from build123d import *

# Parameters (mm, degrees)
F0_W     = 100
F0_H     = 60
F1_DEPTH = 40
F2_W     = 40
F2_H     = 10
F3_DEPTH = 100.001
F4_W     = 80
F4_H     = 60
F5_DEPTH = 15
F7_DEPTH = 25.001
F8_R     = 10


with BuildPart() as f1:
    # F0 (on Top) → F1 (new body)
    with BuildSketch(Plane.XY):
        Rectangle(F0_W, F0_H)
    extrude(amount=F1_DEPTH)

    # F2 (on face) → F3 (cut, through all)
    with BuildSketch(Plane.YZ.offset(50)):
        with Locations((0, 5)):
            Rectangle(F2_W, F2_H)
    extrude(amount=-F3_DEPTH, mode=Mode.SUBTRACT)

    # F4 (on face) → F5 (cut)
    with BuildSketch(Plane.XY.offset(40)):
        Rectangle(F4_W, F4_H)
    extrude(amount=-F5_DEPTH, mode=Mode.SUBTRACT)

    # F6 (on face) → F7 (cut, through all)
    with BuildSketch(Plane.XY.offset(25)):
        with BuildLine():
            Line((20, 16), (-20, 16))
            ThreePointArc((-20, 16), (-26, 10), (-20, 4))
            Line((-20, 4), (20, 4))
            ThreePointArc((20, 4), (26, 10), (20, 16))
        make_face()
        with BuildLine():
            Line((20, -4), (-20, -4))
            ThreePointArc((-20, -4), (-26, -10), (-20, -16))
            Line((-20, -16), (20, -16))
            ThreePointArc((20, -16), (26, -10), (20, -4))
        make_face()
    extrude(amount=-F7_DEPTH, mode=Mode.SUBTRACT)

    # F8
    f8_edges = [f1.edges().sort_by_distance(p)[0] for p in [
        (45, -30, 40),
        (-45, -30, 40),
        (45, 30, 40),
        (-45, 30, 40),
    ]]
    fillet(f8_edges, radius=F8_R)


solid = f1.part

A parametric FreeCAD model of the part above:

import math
import FreeCAD as App
import Part
import Sketcher

V = App.Vector
Q = App.Units.Quantity


def edges_at(feature, points):
    """Names of the edges that pass closest to the given points."""
    edges = feature.Shape.Edges
    near = lambda p: min(range(len(edges)), key=lambda i: edges[i].distToShape(Part.Vertex(*p))[0])
    return sorted({f"Edge{near(p) + 1}" for p in points})

doc = App.newDocument("Part")
body = doc.addObject("PartDesign::Body", "Body")

sketch1 = body.newObject("Sketcher::SketchObject", "Sketch")
sketch1.AttachmentSupport = (doc.getObject("XY_Plane"), [""])
sketch1.MapMode = "FlatFace"
sketch1.addGeometry([
    Part.LineSegment(V(-50, 30, 0), V(-50, -30, 0)),
    Part.LineSegment(V(-50, -30, 0), V(50, -30, 0)),
    Part.LineSegment(V(50, -30, 0), V(50, 30, 0)),
    Part.LineSegment(V(50, 30, 0), V(-50, 30, 0)),
], False)
sketch1.addConstraint([
    Sketcher.Constraint("Coincident", 0, 2, 1, 1),
    Sketcher.Constraint("Coincident", 1, 2, 2, 1),
    Sketcher.Constraint("Coincident", 2, 2, 3, 1),
    Sketcher.Constraint("Coincident", 3, 2, 0, 1),
    Sketcher.Constraint("Vertical", 0),
    Sketcher.Constraint("Horizontal", 1),
    Sketcher.Constraint("Vertical", 2),
    Sketcher.Constraint("Horizontal", 3),
    Sketcher.Constraint("Symmetric", 0, 2, 2, 2, -1, 1),
    Sketcher.Constraint("DistanceX", 1, 1, 1, 2, Q("100 mm")),
    Sketcher.Constraint("DistanceY", 0, 2, 0, 1, Q("60 mm")),
])
pad1 = body.newObject("PartDesign::Pad", "Pad")
pad1.Profile = sketch1
pad1.Length = 40

sketch2 = body.newObject("Sketcher::SketchObject", "Sketch001")
sketch2.AttachmentSupport = (doc.getObject("YZ_Plane"), [""])
sketch2.MapMode = "FlatFace"
sketch2.AttachmentOffset = App.Placement(V(0, 0, 50), App.Rotation())
sketch2.addGeometry([
    Part.LineSegment(V(-20, 10, 0), V(-20, 0, 0)),
    Part.LineSegment(V(-20, 0, 0), V(20, 0, 0)),
    Part.LineSegment(V(20, 0, 0), V(20, 10, 0)),
    Part.LineSegment(V(20, 10, 0), V(-20, 10, 0)),
], False)
sketch2.addConstraint([
    Sketcher.Constraint("Coincident", 0, 2, 1, 1),
    Sketcher.Constraint("Coincident", 1, 2, 2, 1),
    Sketcher.Constraint("Coincident", 2, 2, 3, 1),
    Sketcher.Constraint("Coincident", 3, 2, 0, 1),
    Sketcher.Constraint("Vertical", 0),
    Sketcher.Constraint("Horizontal", 1),
    Sketcher.Constraint("Vertical", 2),
    Sketcher.Constraint("Horizontal", 3),
    Sketcher.Constraint("Symmetric", 0, 2, 1, 2, -1, 1),
    Sketcher.Constraint("DistanceX", 1, 1, 1, 2, Q("40 mm")),
    Sketcher.Constraint("DistanceY", 0, 2, 0, 1, Q("10 mm")),
])
pocket1 = body.newObject("PartDesign::Pocket", "Pocket")
pocket1.Profile = sketch2
pocket1.Type = "ThroughAll"

sketch3 = body.newObject("Sketcher::SketchObject", "Sketch002")
sketch3.AttachmentSupport = (doc.getObject("XY_Plane"), [""])
sketch3.MapMode = "FlatFace"
sketch3.AttachmentOffset = App.Placement(V(0, 0, 40), App.Rotation())
sketch3.addGeometry([
    Part.LineSegment(V(-40, 30, 0), V(-40, -30, 0)),
    Part.LineSegment(V(-40, -30, 0), V(40, -30, 0)),
    Part.LineSegment(V(40, -30, 0), V(40, 30, 0)),
    Part.LineSegment(V(40, 30, 0), V(-40, 30, 0)),
], False)
sketch3.addConstraint([
    Sketcher.Constraint("Coincident", 0, 2, 1, 1),
    Sketcher.Constraint("Coincident", 1, 2, 2, 1),
    Sketcher.Constraint("Coincident", 2, 2, 3, 1),
    Sketcher.Constraint("Coincident", 3, 2, 0, 1),
    Sketcher.Constraint("Vertical", 0),
    Sketcher.Constraint("Horizontal", 1),
    Sketcher.Constraint("Vertical", 2),
    Sketcher.Constraint("Horizontal", 3),
    Sketcher.Constraint("Symmetric", 0, 2, 2, 2, -1, 1),
    Sketcher.Constraint("DistanceX", 1, 1, 1, 2, Q("80 mm")),
    Sketcher.Constraint("DistanceY", 0, 2, 0, 1, Q("60 mm")),
])
pocket2 = body.newObject("PartDesign::Pocket", "Pocket001")
pocket2.Profile = sketch3
pocket2.Length = 15

sketch4 = body.newObject("Sketcher::SketchObject", "Sketch003")
sketch4.AttachmentSupport = (doc.getObject("XY_Plane"), [""])
sketch4.MapMode = "FlatFace"
sketch4.AttachmentOffset = App.Placement(V(0, 0, 25), App.Rotation())
sketch4.addGeometry([
    Part.LineSegment(V(20, 16, 0), V(-20, 16, 0)),
    Part.ArcOfCircle(Part.Circle(V(-20, 10, 0), V(0, 0, 1), 6), math.radians(90), math.radians(270)),
    Part.LineSegment(V(-20, 4, 0), V(20, 4, 0)),
    Part.ArcOfCircle(Part.Circle(V(20, 10, 0), V(0, 0, 1), 6), math.radians(-90), math.radians(90)),
    Part.LineSegment(V(20, -4, 0), V(-20, -4, 0)),
    Part.ArcOfCircle(Part.Circle(V(-20, -10, 0), V(0, 0, 1), 6), math.radians(90), math.radians(270)),
    Part.LineSegment(V(-20, -16, 0), V(20, -16, 0)),
    Part.ArcOfCircle(Part.Circle(V(20, -10, 0), V(0, 0, 1), 6), math.radians(-90), math.radians(90)),
], False)
sketch4.addConstraint([
    Sketcher.Constraint("Tangent", 0, 2, 1, 1),
    Sketcher.Constraint("Tangent", 1, 2, 2, 1),
    Sketcher.Constraint("Tangent", 2, 2, 3, 1),
    Sketcher.Constraint("Tangent", 3, 2, 0, 1),
    Sketcher.Constraint("Tangent", 4, 2, 5, 1),
    Sketcher.Constraint("Tangent", 5, 2, 6, 1),
    Sketcher.Constraint("Tangent", 6, 2, 7, 1),
    Sketcher.Constraint("Tangent", 7, 2, 4, 1),
    Sketcher.Constraint("Horizontal", 0),
    Sketcher.Constraint("Horizontal", 2),
    Sketcher.Constraint("Horizontal", 4),
    Sketcher.Constraint("Horizontal", 6),
    Sketcher.Constraint("Equal", 3, 5),
    Sketcher.Constraint("Symmetric", 3, 3, 5, 3, -1, 1),
    Sketcher.Constraint("Vertical", 1, 3, 5, 3),
    Sketcher.Constraint("Vertical", 3, 3, 7, 3),
    Sketcher.Constraint("Radius", 1, Q("6 mm")),
    Sketcher.Constraint("DistanceX", 0, 2, 0, 1, Q("40 mm")),
    Sketcher.Constraint("DistanceY", -1, 1, 1, 3, Q("10 mm")),
])
pocket3 = body.newObject("PartDesign::Pocket", "Pocket002")
pocket3.Profile = sketch4
pocket3.Type = "ThroughAll"
doc.recompute()

fillet = body.newObject("PartDesign::Fillet", "Fillet")
fillet.Base = (pocket3, edges_at(pocket3, [
    (45, -30, 40),
    (-45, -30, 40),
    (45, 30, 40),
    (-45, 30, 40),
]))
fillet.Radius = 10

doc.recompute()
